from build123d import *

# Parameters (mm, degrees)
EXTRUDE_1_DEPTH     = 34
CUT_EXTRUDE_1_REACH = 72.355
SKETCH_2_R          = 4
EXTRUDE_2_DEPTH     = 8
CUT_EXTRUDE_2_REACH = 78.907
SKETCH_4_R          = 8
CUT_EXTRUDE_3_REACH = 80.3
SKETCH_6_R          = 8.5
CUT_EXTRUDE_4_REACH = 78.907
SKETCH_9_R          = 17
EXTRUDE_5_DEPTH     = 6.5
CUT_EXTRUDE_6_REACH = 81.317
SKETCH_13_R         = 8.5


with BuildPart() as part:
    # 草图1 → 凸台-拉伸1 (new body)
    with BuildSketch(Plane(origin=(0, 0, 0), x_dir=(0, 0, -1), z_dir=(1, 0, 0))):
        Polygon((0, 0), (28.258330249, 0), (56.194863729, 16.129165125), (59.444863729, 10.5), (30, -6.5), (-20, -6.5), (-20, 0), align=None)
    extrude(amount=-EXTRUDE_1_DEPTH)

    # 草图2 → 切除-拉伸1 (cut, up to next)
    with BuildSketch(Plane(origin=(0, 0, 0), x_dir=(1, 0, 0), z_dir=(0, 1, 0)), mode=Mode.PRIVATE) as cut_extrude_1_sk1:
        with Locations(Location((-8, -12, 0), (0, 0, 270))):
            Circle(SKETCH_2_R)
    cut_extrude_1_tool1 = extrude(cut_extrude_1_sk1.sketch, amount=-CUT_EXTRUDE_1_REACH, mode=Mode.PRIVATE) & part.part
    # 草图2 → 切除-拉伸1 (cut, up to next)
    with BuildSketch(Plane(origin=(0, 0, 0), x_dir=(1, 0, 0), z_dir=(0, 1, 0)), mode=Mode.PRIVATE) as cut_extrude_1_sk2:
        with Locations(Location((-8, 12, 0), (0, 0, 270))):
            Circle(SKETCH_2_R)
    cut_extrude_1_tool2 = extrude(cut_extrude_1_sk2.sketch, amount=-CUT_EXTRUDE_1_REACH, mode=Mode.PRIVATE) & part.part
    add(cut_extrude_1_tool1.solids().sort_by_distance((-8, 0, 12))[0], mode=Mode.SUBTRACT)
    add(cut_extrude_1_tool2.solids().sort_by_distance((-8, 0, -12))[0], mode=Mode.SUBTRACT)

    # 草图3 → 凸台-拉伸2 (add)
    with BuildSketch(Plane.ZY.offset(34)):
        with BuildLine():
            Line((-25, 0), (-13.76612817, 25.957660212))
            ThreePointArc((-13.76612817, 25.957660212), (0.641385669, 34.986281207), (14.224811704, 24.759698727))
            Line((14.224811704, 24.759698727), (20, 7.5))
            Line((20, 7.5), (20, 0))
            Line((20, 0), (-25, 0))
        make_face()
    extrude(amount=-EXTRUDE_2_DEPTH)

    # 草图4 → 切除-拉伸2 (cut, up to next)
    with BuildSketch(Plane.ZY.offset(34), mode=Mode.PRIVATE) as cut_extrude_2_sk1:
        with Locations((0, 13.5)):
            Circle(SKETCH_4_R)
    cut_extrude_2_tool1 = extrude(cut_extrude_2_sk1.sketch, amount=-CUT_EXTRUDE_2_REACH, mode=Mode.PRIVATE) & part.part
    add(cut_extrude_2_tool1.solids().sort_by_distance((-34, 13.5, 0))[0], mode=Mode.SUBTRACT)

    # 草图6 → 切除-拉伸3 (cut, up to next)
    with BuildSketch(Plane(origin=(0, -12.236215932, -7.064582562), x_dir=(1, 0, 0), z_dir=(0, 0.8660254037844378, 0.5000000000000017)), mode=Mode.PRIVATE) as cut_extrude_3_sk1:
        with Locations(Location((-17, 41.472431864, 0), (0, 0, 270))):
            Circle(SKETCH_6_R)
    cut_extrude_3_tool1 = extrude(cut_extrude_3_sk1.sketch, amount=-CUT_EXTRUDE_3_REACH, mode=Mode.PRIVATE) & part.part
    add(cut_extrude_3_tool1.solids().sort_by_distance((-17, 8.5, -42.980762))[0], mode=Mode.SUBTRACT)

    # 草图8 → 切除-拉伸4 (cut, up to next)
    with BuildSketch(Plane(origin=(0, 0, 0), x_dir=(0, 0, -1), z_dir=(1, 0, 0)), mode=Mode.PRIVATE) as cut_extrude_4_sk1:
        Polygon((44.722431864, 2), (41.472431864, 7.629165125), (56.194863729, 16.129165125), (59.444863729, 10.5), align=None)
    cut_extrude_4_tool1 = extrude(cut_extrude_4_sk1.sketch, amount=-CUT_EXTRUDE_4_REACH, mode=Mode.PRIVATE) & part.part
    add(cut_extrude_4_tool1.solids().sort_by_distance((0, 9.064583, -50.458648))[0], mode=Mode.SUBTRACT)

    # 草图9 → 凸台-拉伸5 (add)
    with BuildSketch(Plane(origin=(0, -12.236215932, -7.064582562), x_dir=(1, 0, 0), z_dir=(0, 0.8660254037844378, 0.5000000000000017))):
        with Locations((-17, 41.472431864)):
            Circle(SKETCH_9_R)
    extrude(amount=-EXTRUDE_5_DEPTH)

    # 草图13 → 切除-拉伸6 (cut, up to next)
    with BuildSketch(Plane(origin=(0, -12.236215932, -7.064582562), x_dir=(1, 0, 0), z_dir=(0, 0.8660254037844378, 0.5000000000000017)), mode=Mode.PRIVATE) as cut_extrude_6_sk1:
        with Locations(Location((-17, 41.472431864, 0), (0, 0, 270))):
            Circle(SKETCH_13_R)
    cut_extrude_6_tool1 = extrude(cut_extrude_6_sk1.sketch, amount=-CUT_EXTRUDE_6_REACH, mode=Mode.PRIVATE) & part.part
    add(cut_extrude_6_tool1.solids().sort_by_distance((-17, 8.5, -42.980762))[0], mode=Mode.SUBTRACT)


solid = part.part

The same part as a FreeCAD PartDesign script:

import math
import FreeCAD as App
import Part
import Sketcher
from FreeCAD import Vector
Q = App.Units.Quantity

doc = App.newDocument("Part")
body = doc.addObject("PartDesign::Body", "Body")

# Sketch on YZ plane
sketch1 = body.newObject("Sketcher::SketchObject", "Sketch")
sketch1.AttachmentSupport = (doc.getObject("YZ_Plane"), [""])
sketch1.MapMode = "FlatFace"
sketch1.addGeometry(Part.LineSegment(Vector(0, -28, 0), Vector(0, 20, 0)), False)
sketch1.addGeometry(Part.LineSegment(Vector(0, 20, 0), Vector(-6, 20, 0)), False)
sketch1.addGeometry(Part.LineSegment(Vector(-6, 20, 0), Vector(-6, -30, 0)), False)
sketch1.addGeometry(Part.LineSegment(Vector(-6, -30, 0), Vector(10, -59, 0)), False)
sketch1.addGeometry(Part.LineSegment(Vector(10, -59, 0), Vector(16, -56, 0)), False)
sketch1.addGeometry(Part.LineSegment(Vector(16, -56, 0), Vector(0, -28, 0)), False)
sketch1.addConstraint(Sketcher.Constraint("Coincident", 0, 2, 1, 1))
sketch1.addConstraint(Sketcher.Constraint("Coincident", 1, 2, 2, 1))
sketch1.addConstraint(Sketcher.Constraint("Coincident", 2, 2, 3, 1))
sketch1.addConstraint(Sketcher.Constraint("Coincident", 3, 2, 4, 1))
sketch1.addConstraint(Sketcher.Constraint("Coincident", 4, 2, 5, 1))
sketch1.addConstraint(Sketcher.Constraint("Coincident", 5, 2, 0, 1))
sketch1.addConstraint(Sketcher.Constraint("Vertical", 0))
sketch1.addConstraint(Sketcher.Constraint("Horizontal", 1))
sketch1.addConstraint(Sketcher.Constraint("Vertical", 2))
sketch1.addConstraint(Sketcher.Constraint("PointOnObject", 0, 2, -2))
sketch1.addConstraint(Sketcher.Constraint("Perpendicular", 3, 4))
sketch1.addConstraint(Sketcher.Constraint("Perpendicular", 4, 5))
sketch1.addConstraint(Sketcher.Constraint("DistanceY", 2, 2, 2, 1, 50.0))
sketch1.addConstraint(Sketcher.Constraint("Angle", 3, Q("-60 deg")))
sketch1.addConstraint(Sketcher.Constraint("Distance", 3, 34.0))
sketch1.addConstraint(Sketcher.Constraint("DistanceX", 1, 2, 1, 1, 6.5))
sketch1.addConstraint(Sketcher.Constraint("DistanceY", -1, 1, 0, 2, 20.0))
sketch1.addConstraint(Sketcher.Constraint("Distance", 4, 6.5))
pad1 = body.newObject("PartDesign::Pad", "Pad")
pad1.Profile = sketch1
pad1.Length = 34
pad1.Reversed = True

# Sketch on XZ plane
sketch2 = body.newObject("Sketcher::SketchObject", "Sketch001")
sketch2.AttachmentSupport = (doc.getObject("XZ_Plane"), [""])
sketch2.MapMode = "FlatFace"
sketch2.addGeometry(Part.Circle(Vector(-8, 12, 0), Vector(0, 0, 1), 4), False)
sketch2.addConstraint(Sketcher.Constraint("Diameter", 0, 8.0))
sketch2.addConstraint(Sketcher.Constraint("DistanceX", 0, 3, -1, 1, 8.0))
sketch2.addConstraint(Sketcher.Constraint("DistanceY", -1, 1, 0, 3, 12.0))
pocket1 = body.newObject("PartDesign::Pocket", "Pocket")
pocket1.Profile = sketch2
pocket1.Type = "UpToFirst"
pocket1.Reversed = True

# Sketch on XZ plane
sketch3 = body.newObject("Sketcher::SketchObject", "Sketch002")
sketch3.AttachmentSupport = (doc.getObject("XZ_Plane"), [""])
sketch3.MapMode = "FlatFace"
sketch3.addGeometry(Part.Circle(Vector(-8, -12, 0), Vector(0, 0, 1), 4), False)
sketch3.addConstraint(Sketcher.Constraint("Diameter", 0, 8.0))
sketch3.addConstraint(Sketcher.Constraint("DistanceX", 0, 3, -1, 1, 8.0))
sketch3.addConstraint(Sketcher.Constraint("DistanceY", 0, 3, -1, 1, 12.0))
pocket2 = body.newObject("PartDesign::Pocket", "Pocket001")
pocket2.Profile = sketch3
pocket2.Type = "UpToFirst"
pocket2.Reversed = True

# Sketch on YZ plane
sketch4 = body.newObject("Sketcher::SketchObject", "Sketch003")
sketch4.AttachmentSupport = (doc.getObject("YZ_Plane"), [""])
sketch4.MapMode = "FlatFace"
sketch4.AttachmentOffset = App.Placement(Vector(0, 0, -34), App.Rotation())
sketch4.addGeometry(Part.LineSegment(Vector(26, -14, 0), Vector(0, -25, 0)), False)
sketch4.addGeometry(Part.LineSegment(Vector(0, -25, 0), Vector(0, 20, 0)), False)
sketch4.addGeometry(Part.LineSegment(Vector(0, 20, 0), Vector(8, 20, 0)), False)
sketch4.addGeometry(Part.LineSegment(Vector(8, 20, 0), Vector(25, 14, 0)), False)
sketch4.addGeometry(Part.ArcOfCircle(Part.Circle(Vector(20, 0, 0), Vector(0, 0, 1), 15), math.radians(-67), math.radians(71)), False)
sketch4.addConstraint(Sketcher.Constraint("Coincident", 0, 2, 1, 1))
sketch4.addConstraint(Sketcher.Constraint("Coincident", 1, 2, 2, 1))
sketch4.addConstraint(Sketcher.Constraint("Coincident", 2, 2, 3, 1))
sketch4.addConstraint(Sketcher.Constraint("Tangent", 3, 2, 4, 2))
sketch4.addConstraint(Sketcher.Constraint("Tangent", 4, 1, 0, 1))
sketch4.addConstraint(Sketcher.Constraint("Vertical", 1))
sketch4.addConstraint(Sketcher.Constraint("Horizontal", 2))
sketch4.addConstraint(Sketcher.Constraint("PointOnObject", 4, 3, -1))
sketch4.addConstraint(Sketcher.Constraint("PointOnObject", 0, 2, -2))
sketch4.addConstraint(Sketcher.Constraint("Radius", 4, 15.0))
sketch4.addConstraint(Sketcher.Constraint("DistanceY", 1, 1, 1, 2, 45.0))
sketch4.addConstraint(Sketcher.Constraint("DistanceX", 2, 1, 2, 2, 7.5))
sketch4.addConstraint(Sketcher.Constraint("DistanceX", -1, 1, 4, 3, 20.0))
sketch4.addConstraint(Sketcher.Constraint("DistanceY", 0, 2, -1, 1, 25.0))
pad2 = body.newObject("PartDesign::Pad", "Pad001")
pad2.Profile = sketch4
pad2.Length = 8

# Sketch on YZ plane
sketch5 = body.newObject("Sketcher::SketchObject", "Sketch004")
sketch5.AttachmentSupport = (doc.getObject("YZ_Plane"), [""])
sketch5.MapMode = "FlatFace"
sketch5.AttachmentOffset = App.Placement(Vector(0, 0, -34), App.Rotation())
sketch5.addGeometry(Part.Circle(Vector(14, 0, 0), Vector(0, 0, 1), 8), False)
sketch5.addConstraint(Sketcher.Constraint("PointOnObject", 0, 3, -1))
sketch5.addConstraint(Sketcher.Constraint("Diameter", 0, 16.0))
sketch5.addConstraint(Sketcher.Constraint("DistanceX", -1, 1, 0, 3, 13.5))
pocket3 = body.newObject("PartDesign::Pocket", "Pocket002")
pocket3.Profile = sketch5
pocket3.Type = "UpToFirst"
pocket3.Reversed = True

# Sketch on an angled plane
sketch6 = body.newObject("Sketcher::SketchObject", "Sketch005")
sketch6.Placement = App.Placement(Vector(0, -12.236216, -7.064583), App.Rotation(Vector(1, 0, 0), Vector(0, 0.5, -0.866025404), Vector(0, 0.866025404, 0.5), "ZXY"))
sketch6.addGeometry(Part.Circle(Vector(-17, 41, 0), Vector(0, 0, 1), 8), False)
sketch6.addConstraint(Sketcher.Constraint("Diameter", 0, 17.0))
sketch6.addConstraint(Sketcher.Constraint("DistanceX", 0, 3, -1, 1, 17.0))
sketch6.addConstraint(Sketcher.Constraint("DistanceY", -1, 1, 0, 3, 41.472432))
pocket4 = body.newObject("PartDesign::Pocket", "Pocket003")
pocket4.Profile = sketch6
pocket4.Type = "UpToFirst"

# Sketch on YZ plane
sketch7 = body.newObject("Sketcher::SketchObject", "Sketch006")
sketch7.AttachmentSupport = (doc.getObject("YZ_Plane"), [""])
sketch7.MapMode = "FlatFace"
sketch7.addGeometry(Part.LineSegment(Vector(8, -41, 0), Vector(2, -45, 0)), False)
sketch7.addGeometry(Part.LineSegment(Vector(2, -45, 0), Vector(10, -59, 0)), False)
sketch7.addGeometry(Part.LineSegment(Vector(10, -59, 0), Vector(16, -56, 0)), False)
sketch7.addGeometry(Part.LineSegment(Vector(16, -56, 0), Vector(8, -41, 0)), False)
sketch7.addConstraint(Sketcher.Constraint("Coincident", 0, 2, 1, 1))
sketch7.addConstraint(Sketcher.Constraint("Coincident", 1, 2, 2, 1))
sketch7.addConstraint(Sketcher.Constraint("Coincident", 2, 2, 3, 1))
sketch7.addConstraint(Sketcher.Constraint("Coincident", 3, 2, 0, 1))
sketch7.addConstraint(Sketcher.Constraint("Perpendicular", 0, 1))
sketch7.addConstraint(Sketcher.Constraint("Perpendicular", 1, 2))
sketch7.addConstraint(Sketcher.Constraint("Perpendicular", 2, 3))
sketch7.addConstraint(Sketcher.Constraint("Angle", 0, Q("-150 deg")))
sketch7.addConstraint(Sketcher.Constraint("Distance", 1, 17.0))
sketch7.addConstraint(Sketcher.Constraint("DistanceX", -1, 1, 0, 2, 2.0))
sketch7.addConstraint(Sketcher.Constraint("Distance", 0, 6.5))
sketch7.addConstraint(Sketcher.Constraint("DistanceY", 0, 2, -1, 1, 44.722432))
pocket5 = body.newObject("PartDesign::Pocket", "Pocket004")
pocket5.Profile = sketch7
pocket5.Length = 34

# Sketch on an angled plane
sketch8 = body.newObject("Sketcher::SketchObject", "Sketch007")
sketch8.Placement = App.Placement(Vector(0, -12.236216, -7.064583), App.Rotation(Vector(1, 0, 0), Vector(0, 0.5, -0.866025404), Vector(0, 0.866025404, 0.5), "ZXY"))
sketch8.addGeometry(Part.Circle(Vector(-17, 41, 0), Vector(0, 0, 1), 17), False)
sketch8.addConstraint(Sketcher.Constraint("Diameter", 0, 34.0))
sketch8.addConstraint(Sketcher.Constraint("DistanceX", 0, 3, -1, 1, 17.0))
sketch8.addConstraint(Sketcher.Constraint("DistanceY", -1, 1, 0, 3, 41.472432))
pad3 = body.newObject("PartDesign::Pad", "Pad002")
pad3.Profile = sketch8
pad3.Length = 6.5
pad3.Reversed = True

# Sketch on an angled plane
sketch9 = body.newObject("Sketcher::SketchObject", "Sketch008")
sketch9.Placement = App.Placement(Vector(0, -12.236216, -7.064583), App.Rotation(Vector(1, 0, 0), Vector(0, 0.5, -0.866025404), Vector(0, 0.866025404, 0.5), "ZXY"))
sketch9.addGeometry(Part.Circle(Vector(-17, 41, 0), Vector(0, 0, 1), 8), False)
sketch9.addConstraint(Sketcher.Constraint("Diameter", 0, 17.0))
sketch9.addConstraint(Sketcher.Constraint("DistanceX", 0, 3, -1, 1, 17.0))
sketch9.addConstraint(Sketcher.Constraint("DistanceY", -1, 1, 0, 3, 41.472432))
pocket6 = body.newObject("PartDesign::Pocket", "Pocket005")
pocket6.Profile = sketch9
pocket6.Type = "UpToFirst"

doc.recompute()
